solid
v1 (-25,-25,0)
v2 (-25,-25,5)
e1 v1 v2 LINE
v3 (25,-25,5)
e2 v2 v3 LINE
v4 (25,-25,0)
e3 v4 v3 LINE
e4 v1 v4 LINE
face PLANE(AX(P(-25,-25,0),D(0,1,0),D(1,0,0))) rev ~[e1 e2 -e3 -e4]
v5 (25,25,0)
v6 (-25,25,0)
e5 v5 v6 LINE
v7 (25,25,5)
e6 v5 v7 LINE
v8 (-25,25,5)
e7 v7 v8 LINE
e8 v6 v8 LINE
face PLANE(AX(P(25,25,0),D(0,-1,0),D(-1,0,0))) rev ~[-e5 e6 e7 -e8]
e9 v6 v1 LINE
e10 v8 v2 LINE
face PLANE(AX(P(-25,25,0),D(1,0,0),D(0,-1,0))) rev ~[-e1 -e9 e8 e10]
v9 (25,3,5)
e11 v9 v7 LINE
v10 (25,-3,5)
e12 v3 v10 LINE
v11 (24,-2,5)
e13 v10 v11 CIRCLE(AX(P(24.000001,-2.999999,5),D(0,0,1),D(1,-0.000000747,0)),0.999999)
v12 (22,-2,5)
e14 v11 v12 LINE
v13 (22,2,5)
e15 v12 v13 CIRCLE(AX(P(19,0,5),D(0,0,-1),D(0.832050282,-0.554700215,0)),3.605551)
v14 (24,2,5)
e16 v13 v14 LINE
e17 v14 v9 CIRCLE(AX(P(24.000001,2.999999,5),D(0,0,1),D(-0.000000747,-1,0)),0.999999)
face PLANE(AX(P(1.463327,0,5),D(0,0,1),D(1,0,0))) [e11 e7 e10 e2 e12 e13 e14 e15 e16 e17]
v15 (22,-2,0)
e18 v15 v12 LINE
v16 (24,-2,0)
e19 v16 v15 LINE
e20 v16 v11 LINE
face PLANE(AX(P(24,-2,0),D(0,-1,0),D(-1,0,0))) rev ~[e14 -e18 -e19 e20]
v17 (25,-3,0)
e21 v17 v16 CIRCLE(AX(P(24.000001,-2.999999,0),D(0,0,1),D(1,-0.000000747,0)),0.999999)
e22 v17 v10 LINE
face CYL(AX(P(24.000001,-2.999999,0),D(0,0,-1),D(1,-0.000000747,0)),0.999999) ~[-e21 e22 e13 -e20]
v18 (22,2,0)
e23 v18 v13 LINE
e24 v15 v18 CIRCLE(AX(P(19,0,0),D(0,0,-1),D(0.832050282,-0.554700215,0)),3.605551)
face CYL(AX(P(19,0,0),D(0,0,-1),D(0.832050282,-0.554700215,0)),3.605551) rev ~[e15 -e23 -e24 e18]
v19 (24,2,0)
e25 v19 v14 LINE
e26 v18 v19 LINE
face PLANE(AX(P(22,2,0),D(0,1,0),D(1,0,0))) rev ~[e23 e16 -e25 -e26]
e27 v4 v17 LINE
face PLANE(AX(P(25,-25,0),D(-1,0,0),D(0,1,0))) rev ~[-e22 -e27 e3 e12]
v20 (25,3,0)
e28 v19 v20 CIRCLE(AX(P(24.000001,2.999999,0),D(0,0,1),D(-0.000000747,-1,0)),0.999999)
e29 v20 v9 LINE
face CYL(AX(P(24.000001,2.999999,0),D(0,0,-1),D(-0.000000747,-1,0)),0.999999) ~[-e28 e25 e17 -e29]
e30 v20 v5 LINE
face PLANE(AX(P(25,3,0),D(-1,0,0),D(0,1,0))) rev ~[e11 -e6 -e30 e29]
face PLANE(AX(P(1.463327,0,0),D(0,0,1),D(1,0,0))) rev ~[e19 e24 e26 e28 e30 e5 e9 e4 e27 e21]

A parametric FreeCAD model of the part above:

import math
import FreeCAD as App
import Part
import Sketcher
Q = App.Units.Quantity

doc = App.newDocument("Part")
params = doc.addObject("Spreadsheet::Sheet", "Params")
for row, (alias, value) in enumerate([
    ("sketch1_radius", "0.999999 mm"),
    ("sketch1_width", "50 mm"),
    ("sketch1_width2", "2 mm"),
    ("sketch1_height", "22 mm"),
    ("pad1_length", "5 mm"),
], start=1):
    params.set(f"A{row}", alias)
    params.set(f"B{row}", "=" + value)
    params.setAlias(f"B{row}", alias)

body = doc.addObject("PartDesign::Body", "Body")

sketch1 = body.newObject("Sketcher::SketchObject", "Sketch")
sketch1.AttachmentSupport = (doc.getObject("XY_Plane"), [""])
sketch1.MapMode = "FlatFace"
sketch1.addGeometry([
    Part.LineSegment(App.Vector(-25, 25, 0), App.Vector(-25, -25, 0)),
    Part.LineSegment(App.Vector(-25, -25, 0), App.Vector(25, -25, 0)),
    Part.LineSegment(App.Vector(25, -25, 0), App.Vector(25, -3, 0)),
    Part.ArcOfCircle(Part.Circle(App.Vector(24.000001, -2.999999, 0), App.Vector(0, 0, 1), 0.999999), math.radians(-0.000043), math.radians(90.000043)),
    Part.LineSegment(App.Vector(24, -2, 0), App.Vector(22, -2, 0)),
    Part.ArcOfCircle(Part.Circle(App.Vector(19, 0, 0), App.Vector(0, 0, 1), 3.605551), math.radians(33.690069), math.radians(326.309931)),
    Part.LineSegment(App.Vector(22, 2, 0), App.Vector(24, 2, 0)),
    Part.ArcOfCircle(Part.Circle(App.Vector(24.000001, 2.999999, 0), App.Vector(0, 0, 1), 0.999999), math.radians(-90.000043), math.radians(0.000043)),
    Part.LineSegment(App.Vector(25, 3, 0), App.Vector(25, 25, 0)),
    Part.LineSegment(App.Vector(25, 25, 0), App.Vector(-25, 25, 0)),
], False)
sketch1.addConstraint([
    Sketcher.Constraint("Coincident", 0, 2, 1, 1),
    Sketcher.Constraint("Coincident", 1, 2, 2, 1),
    Sketcher.Constraint("Tangent", 2, 2, 3, 1),
    Sketcher.Constraint("Tangent", 3, 2, 4, 1),
    Sketcher.Constraint("Coincident", 4, 2, 5, 2),
    Sketcher.Constraint("Coincident", 5, 1, 6, 1),
    Sketcher.Constraint("Tangent", 6, 2, 7, 1),
    Sketcher.Constraint("Tangent", 7, 2, 8, 1),
    Sketcher.Constraint("Coincident", 8, 2, 9, 1),
    Sketcher.Constraint("Coincident", 9, 2, 0, 1),
    Sketcher.Constraint("Vertical", 0),
    Sketcher.Constraint("Horizontal", 1),
    Sketcher.Constraint("Vertical", 2),
    Sketcher.Constraint("Horizontal", 4),
    Sketcher.Constraint("Horizontal", 6),
    Sketcher.Constraint("Vertical", 8),
    Sketcher.Constraint("Horizontal", 9),
    Sketcher.Constraint("Equal", 3, 7),
    Sketcher.Constraint("Symmetric", 0, 2, 8, 2, -1, 1),
    Sketcher.Constraint("Symmetric", 3, 3, 7, 3, -1),
    Sketcher.Constraint("PointOnObject", 5, 3, -1),
    Sketcher.Constraint("Equal", 9, 0),
    Sketcher.Constraint("Radius", 3, Q("0.999999 mm")),
    Sketcher.Constraint("DistanceX", 1, 1, 1, 2, Q("50 mm")),
    Sketcher.Constraint("DistanceX", 4, 2, 4, 1, Q("2 mm")),
    Sketcher.Constraint("DistanceY", 2, 1, 2, 2, Q("22 mm")),
    Sketcher.Constraint("DistanceX", -1, 1, 5, 3, Q("19 mm")),
])
sketch1.setExpression("Constraints[22]", "Params.sketch1_radius")
sketch1.setExpression("Constraints[23]", "Params.sketch1_width")
sketch1.setExpression("Constraints[24]", "Params.sketch1_width2")
sketch1.setExpression("Constraints[25]", "Params.sketch1_height")
pad1 = body.newObject("PartDesign::Pad", "Pad")
pad1.Profile = sketch1
pad1.setExpression("Length", "Params.pad1_length")

doc.recompute()
